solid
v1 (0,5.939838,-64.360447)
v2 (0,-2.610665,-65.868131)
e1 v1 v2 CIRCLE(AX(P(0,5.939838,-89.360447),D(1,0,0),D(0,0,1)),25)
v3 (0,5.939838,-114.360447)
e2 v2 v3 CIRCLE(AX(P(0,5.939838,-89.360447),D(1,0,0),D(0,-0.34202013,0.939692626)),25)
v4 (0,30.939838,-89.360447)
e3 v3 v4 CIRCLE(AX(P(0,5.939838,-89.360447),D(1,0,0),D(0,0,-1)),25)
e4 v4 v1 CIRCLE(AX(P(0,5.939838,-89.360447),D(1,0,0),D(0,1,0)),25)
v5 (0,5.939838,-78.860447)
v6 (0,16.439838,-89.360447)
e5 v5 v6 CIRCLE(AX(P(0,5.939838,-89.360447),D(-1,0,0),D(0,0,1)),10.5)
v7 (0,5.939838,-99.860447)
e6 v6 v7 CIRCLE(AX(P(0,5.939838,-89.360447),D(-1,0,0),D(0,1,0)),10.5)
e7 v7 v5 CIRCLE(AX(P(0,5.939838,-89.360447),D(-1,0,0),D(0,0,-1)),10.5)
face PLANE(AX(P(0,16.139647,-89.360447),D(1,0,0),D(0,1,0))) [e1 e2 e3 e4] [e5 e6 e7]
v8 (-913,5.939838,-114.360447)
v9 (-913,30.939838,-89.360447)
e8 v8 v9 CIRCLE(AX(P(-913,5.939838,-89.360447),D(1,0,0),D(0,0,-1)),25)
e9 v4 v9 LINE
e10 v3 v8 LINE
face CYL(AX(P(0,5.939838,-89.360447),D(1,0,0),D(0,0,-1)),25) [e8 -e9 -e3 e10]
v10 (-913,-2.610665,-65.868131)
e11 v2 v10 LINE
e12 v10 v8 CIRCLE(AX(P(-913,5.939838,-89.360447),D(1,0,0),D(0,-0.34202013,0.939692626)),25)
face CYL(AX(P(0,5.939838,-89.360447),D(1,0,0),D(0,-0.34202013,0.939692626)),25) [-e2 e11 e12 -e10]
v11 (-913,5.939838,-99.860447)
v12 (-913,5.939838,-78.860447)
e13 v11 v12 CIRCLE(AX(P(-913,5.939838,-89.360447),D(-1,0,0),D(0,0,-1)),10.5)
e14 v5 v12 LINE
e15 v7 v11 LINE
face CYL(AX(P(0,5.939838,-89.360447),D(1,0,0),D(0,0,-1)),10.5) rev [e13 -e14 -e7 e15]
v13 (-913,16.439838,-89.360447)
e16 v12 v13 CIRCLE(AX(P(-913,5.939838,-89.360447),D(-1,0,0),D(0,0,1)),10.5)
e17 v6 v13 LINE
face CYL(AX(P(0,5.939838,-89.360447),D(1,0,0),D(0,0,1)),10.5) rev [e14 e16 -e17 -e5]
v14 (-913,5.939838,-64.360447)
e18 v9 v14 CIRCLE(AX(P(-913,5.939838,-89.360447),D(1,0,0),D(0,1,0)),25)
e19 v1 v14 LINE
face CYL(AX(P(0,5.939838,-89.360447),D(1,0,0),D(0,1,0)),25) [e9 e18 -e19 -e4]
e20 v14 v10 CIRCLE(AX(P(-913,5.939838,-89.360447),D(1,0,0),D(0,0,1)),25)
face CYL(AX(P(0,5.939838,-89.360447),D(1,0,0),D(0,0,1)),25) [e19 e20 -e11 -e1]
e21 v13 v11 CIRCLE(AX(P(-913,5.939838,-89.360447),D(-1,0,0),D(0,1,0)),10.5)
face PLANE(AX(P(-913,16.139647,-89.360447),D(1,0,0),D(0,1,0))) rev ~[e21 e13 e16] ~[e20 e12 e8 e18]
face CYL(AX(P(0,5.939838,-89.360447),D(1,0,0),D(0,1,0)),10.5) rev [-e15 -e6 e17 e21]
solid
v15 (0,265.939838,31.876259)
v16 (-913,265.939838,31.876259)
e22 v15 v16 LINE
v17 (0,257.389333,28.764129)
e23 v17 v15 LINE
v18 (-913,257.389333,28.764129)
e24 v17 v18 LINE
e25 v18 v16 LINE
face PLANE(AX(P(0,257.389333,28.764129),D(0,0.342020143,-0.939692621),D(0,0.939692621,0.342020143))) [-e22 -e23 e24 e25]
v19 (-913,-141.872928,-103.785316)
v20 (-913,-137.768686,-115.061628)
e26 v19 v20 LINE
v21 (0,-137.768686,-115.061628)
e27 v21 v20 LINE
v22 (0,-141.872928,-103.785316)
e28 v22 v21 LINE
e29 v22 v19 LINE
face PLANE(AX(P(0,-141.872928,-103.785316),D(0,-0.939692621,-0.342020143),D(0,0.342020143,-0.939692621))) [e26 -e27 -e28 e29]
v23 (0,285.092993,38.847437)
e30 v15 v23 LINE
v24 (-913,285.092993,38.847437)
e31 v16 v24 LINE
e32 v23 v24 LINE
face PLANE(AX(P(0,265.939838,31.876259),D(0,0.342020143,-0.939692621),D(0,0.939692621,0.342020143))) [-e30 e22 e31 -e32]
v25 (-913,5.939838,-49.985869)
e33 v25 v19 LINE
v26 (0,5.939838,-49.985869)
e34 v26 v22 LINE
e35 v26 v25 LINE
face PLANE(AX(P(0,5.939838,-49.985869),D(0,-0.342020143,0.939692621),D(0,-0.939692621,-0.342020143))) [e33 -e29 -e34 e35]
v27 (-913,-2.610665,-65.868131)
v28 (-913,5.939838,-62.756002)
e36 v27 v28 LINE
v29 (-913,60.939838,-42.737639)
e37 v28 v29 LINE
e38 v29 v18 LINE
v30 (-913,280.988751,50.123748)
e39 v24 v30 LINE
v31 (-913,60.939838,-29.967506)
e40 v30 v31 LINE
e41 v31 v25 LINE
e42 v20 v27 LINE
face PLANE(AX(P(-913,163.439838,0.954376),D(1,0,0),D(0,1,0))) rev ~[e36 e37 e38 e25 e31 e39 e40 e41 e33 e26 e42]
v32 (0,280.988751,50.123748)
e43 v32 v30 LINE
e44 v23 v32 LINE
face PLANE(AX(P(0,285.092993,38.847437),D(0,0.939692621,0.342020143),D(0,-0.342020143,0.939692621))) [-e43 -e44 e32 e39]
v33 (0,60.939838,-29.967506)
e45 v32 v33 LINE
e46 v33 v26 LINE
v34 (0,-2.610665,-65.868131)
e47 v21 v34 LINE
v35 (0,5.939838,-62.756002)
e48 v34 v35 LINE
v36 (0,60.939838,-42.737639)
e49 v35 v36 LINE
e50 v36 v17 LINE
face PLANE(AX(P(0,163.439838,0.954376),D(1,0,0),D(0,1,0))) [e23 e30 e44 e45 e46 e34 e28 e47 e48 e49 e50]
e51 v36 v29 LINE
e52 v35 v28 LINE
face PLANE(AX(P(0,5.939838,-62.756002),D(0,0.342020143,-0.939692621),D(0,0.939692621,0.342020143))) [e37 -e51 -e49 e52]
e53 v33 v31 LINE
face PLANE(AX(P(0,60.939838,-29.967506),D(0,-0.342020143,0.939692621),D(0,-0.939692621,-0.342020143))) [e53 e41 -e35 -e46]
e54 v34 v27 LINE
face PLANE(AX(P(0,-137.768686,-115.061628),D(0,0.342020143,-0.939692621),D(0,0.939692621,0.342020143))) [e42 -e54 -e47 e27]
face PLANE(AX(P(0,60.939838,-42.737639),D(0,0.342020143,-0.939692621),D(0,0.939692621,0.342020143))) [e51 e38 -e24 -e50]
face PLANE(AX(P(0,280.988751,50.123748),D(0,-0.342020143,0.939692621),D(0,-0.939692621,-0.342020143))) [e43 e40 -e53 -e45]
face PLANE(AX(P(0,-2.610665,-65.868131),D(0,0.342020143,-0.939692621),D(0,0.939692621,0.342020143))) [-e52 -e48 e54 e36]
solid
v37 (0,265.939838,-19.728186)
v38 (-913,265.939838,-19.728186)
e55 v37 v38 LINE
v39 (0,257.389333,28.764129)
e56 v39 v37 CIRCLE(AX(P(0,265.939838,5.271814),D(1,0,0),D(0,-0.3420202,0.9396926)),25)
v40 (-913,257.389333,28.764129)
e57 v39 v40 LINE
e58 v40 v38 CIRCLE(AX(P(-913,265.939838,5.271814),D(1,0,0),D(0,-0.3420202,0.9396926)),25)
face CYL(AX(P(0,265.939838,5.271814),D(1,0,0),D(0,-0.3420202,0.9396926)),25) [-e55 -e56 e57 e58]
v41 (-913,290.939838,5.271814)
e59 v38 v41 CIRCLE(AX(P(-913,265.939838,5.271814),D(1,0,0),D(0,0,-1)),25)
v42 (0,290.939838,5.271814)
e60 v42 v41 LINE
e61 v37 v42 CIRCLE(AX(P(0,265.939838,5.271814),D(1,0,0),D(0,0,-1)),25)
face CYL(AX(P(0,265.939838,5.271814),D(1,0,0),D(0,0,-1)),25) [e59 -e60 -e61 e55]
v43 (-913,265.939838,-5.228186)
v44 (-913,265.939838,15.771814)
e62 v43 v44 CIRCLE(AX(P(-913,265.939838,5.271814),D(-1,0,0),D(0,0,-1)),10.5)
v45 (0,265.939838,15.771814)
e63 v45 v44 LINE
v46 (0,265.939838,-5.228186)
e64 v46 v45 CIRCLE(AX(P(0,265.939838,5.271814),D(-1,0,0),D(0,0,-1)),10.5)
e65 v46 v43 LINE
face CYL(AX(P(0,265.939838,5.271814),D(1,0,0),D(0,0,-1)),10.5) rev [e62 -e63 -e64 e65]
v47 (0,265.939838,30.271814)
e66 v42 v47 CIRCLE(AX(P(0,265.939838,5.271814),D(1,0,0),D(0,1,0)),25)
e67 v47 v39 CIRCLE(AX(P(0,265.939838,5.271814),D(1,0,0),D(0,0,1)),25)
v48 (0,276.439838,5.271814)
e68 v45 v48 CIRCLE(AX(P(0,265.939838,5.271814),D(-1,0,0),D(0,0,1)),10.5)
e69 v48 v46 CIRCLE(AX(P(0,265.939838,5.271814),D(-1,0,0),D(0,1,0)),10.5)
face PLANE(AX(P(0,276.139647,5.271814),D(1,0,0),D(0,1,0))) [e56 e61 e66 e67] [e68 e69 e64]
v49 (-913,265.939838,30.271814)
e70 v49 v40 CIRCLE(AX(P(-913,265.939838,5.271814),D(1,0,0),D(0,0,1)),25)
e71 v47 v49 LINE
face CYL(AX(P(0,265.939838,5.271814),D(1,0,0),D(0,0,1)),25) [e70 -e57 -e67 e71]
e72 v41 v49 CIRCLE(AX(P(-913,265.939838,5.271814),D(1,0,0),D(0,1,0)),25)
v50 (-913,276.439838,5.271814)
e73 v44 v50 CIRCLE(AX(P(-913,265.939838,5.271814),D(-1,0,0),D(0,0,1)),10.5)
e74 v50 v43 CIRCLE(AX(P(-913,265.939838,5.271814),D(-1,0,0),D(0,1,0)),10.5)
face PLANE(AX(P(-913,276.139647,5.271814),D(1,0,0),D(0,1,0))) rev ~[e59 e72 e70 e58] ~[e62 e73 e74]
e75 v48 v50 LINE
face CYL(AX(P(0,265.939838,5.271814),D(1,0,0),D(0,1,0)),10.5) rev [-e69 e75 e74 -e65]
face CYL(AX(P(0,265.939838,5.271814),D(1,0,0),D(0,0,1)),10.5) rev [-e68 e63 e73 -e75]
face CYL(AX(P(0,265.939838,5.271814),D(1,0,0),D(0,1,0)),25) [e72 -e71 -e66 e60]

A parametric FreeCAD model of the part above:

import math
import FreeCAD as App
import Part
import Sketcher

V = App.Vector
Q = App.Units.Quantity


def add_polygon(sketch, points):
    """Adds a closed chain of lines whose ends are joined by coincident constraints."""
    first, n = sketch.GeometryCount, len(points)
    for a, b in zip(points, points[1:] + points[:1]):
        sketch.addGeometry(Part.LineSegment(App.Vector(*a, 0), App.Vector(*b, 0)), False)
    for i in range(n):
        sketch.addConstraint(Sketcher.Constraint("Coincident", first + i, 2, first + (i + 1) % n, 1))

doc = App.newDocument("Part")
params = doc.addObject("Spreadsheet::Sheet", "Params")
for row, (alias, value) in enumerate([
    ("sketch1_radius", "25 mm"),
    ("sketch1_radius2", "10.5 mm"),
    ("pad1_length", "913 mm"),
    ("sketch2_radius", "25 mm"),
    ("sketch2_radius2", "10.5 mm"),
    ("pad2_length", "913 mm"),
    ("sketch3_length", "12 mm"),
    ("pad3_length", "913 mm"),
], start=1):
    params.set(f"A{row}", alias)
    params.set(f"B{row}", "=" + value)
    params.setAlias(f"B{row}", alias)

body = doc.addObject("PartDesign::Body", "Body")

sketch1 = doc.addObject("Sketcher::SketchObject", "Sketch")
body.addObject(sketch1)
sketch1.AttachmentSupport = (doc.YZ_Plane, [""])
sketch1.MapMode = "FlatFace"
sketch1.addGeometry([
    Part.ArcOfCircle(Part.Circle(V(6, -89, 0), V(0, 0, 1), 25), math.radians(0), math.radians(90)),
    Part.ArcOfCircle(Part.Circle(V(6, -89, 0), V(0, 0, 1), 25), math.radians(90), math.radians(110)),
    Part.ArcOfCircle(Part.Circle(V(6, -89, 0), V(0, 0, 1), 25), math.radians(110), math.radians(270)),
    Part.ArcOfCircle(Part.Circle(V(6, -89, 0), V(0, 0, 1), 25), math.radians(-90), math.radians(0)),
    Part.ArcOfCircle(Part.Circle(V(6, -89, 0), V(0, 0, 1), 10), math.radians(0), math.radians(90)),
    Part.ArcOfCircle(Part.Circle(V(6, -89, 0), V(0, 0, 1), 10), math.radians(-90), math.radians(0)),
    Part.ArcOfCircle(Part.Circle(V(6, -89, 0), V(0, 0, 1), 10), math.radians(90), math.radians(270)),
], False)
sketch1.addConstraint([
    Sketcher.Constraint("Tangent", 0, 2, 1, 1),
    Sketcher.Constraint("Tangent", 1, 2, 2, 1),
    Sketcher.Constraint("Tangent", 2, 2, 3, 1),
    Sketcher.Constraint("Tangent", 3, 2, 0, 1),
    Sketcher.Constraint("Tangent", 4, 1, 5, 2),
    Sketcher.Constraint("Tangent", 5, 1, 6, 2),
    Sketcher.Constraint("Tangent", 6, 1, 4, 2),
    Sketcher.Constraint("Coincident", 4, 3, 0, 3),
    Sketcher.Constraint("Equal", 0, 1),
    Sketcher.Constraint("Horizontal", 6, 3, 3, 2),
    Sketcher.Constraint("Horizontal", 3, 2, 4, 1),
    Sketcher.Constraint("Vertical", 6, 3, 0, 2),
    Sketcher.Constraint("Vertical", 0, 2, 2, 2),
    Sketcher.Constraint("Vertical", 2, 2, 5, 1),
    Sketcher.Constraint("Vertical", 5, 1, 6, 1),
    Sketcher.Constraint("Radius", 0, 25.0),
    Sketcher.Constraint("Radius", 4, 10.5),
    Sketcher.Constraint("DistanceX", -1, 1, 0, 3, 5.939838),
    Sketcher.Constraint("DistanceY", 1, 2, -1, 1, 65.868131),
    Sketcher.Constraint("DistanceY", 0, 3, -1, 1, 89.360447),
])
sketch1.setExpression("Constraints[15]", "Params.sketch1_radius")
sketch1.setExpression("Constraints[16]", "Params.sketch1_radius2")
pad1 = doc.addObject("PartDesign::Pad", "Pad")
body.addObject(pad1)
pad1.Profile = sketch1
pad1.setExpression("Length", "Params.pad1_length")
pad1.Reversed = True
body2 = doc.addObject("PartDesign::Body", "Body001")

sketch2 = doc.addObject("Sketcher::SketchObject", "Sketch001")
body2.addObject(sketch2)
sketch2.AttachmentSupport = (doc.getObject("YZ_Plane001"), [""])
sketch2.MapMode = "FlatFace"
sketch2.addGeometry([
    Part.ArcOfCircle(Part.Circle(V(266, 5, 0), V(0, 0, 1), 25), math.radians(0), math.radians(90)),
    Part.ArcOfCircle(Part.Circle(V(266, 5, 0), V(0, 0, 1), 25), math.radians(90), math.radians(110)),
    Part.ArcOfCircle(Part.Circle(V(266, 5, 0), V(0, 0, 1), 25), math.radians(110), math.radians(270)),
    Part.ArcOfCircle(Part.Circle(V(266, 5, 0), V(0, 0, 1), 25), math.radians(-90), math.radians(0)),
    Part.ArcOfCircle(Part.Circle(V(266, 5, 0), V(0, 0, 1), 10), math.radians(0), math.radians(90)),
    Part.ArcOfCircle(Part.Circle(V(266, 5, 0), V(0, 0, 1), 10), math.radians(-90), math.radians(0)),
    Part.ArcOfCircle(Part.Circle(V(266, 5, 0), V(0, 0, 1), 10), math.radians(90), math.radians(270)),
], False)
sketch2.addConstraint([
    Sketcher.Constraint("Tangent", 0, 2, 1, 1),
    Sketcher.Constraint("Tangent", 1, 2, 2, 1),
    Sketcher.Constraint("Tangent", 2, 2, 3, 1),
    Sketcher.Constraint("Tangent", 3, 2, 0, 1),
    Sketcher.Constraint("Tangent", 4, 1, 5, 2),
    Sketcher.Constraint("Tangent", 5, 1, 6, 2),
    Sketcher.Constraint("Tangent", 6, 1, 4, 2),
    Sketcher.Constraint("Coincident", 4, 3, 0, 3),
    Sketcher.Constraint("Equal", 0, 1),
    Sketcher.Constraint("Horizontal", 6, 3, 3, 2),
    Sketcher.Constraint("Horizontal", 3, 2, 4, 1),
    Sketcher.Constraint("Vertical", 6, 3, 0, 2),
    Sketcher.Constraint("Vertical", 0, 2, 2, 2),
    Sketcher.Constraint("Vertical", 2, 2, 5, 1),
    Sketcher.Constraint("Vertical", 5, 1, 6, 1),
    Sketcher.Constraint("Radius", 0, 25.0),
    Sketcher.Constraint("Radius", 4, 10.5),
    Sketcher.Constraint("DistanceX", -1, 1, 0, 3, 265.939838),
    Sketcher.Constraint("DistanceY", -1, 1, 1, 2, 28.764129),
    Sketcher.Constraint("DistanceY", -1, 1, 0, 3, 5.271814),
])
sketch2.setExpression("Constraints[15]", "Params.sketch2_radius")
sketch2.setExpression("Constraints[16]", "Params.sketch2_radius2")
pad2 = doc.addObject("PartDesign::Pad", "Pad001")
body2.addObject(pad2)
pad2.Profile = sketch2
pad2.setExpression("Length", "Params.pad2_length")
pad2.Reversed = True
body3 = doc.addObject("PartDesign::Body", "Body002")

sketch3 = doc.addObject("Sketcher::SketchObject", "Sketch002")
body3.addObject(sketch3)
sketch3.AttachmentSupport = (doc.getObject("YZ_Plane002"), [""])
sketch3.MapMode = "FlatFace"
add_polygon(sketch3, [(61, -30), (6, -50), (-142, -104), (-138, -115), (-3, -66), (6, -63), (61, -43), (257, 29), (266, 32), (285, 39), (281, 50)])
sketch3.addConstraint([
    Sketcher.Constraint("Parallel", 0, 1),
    Sketcher.Constraint("Perpendicular", 1, 2),
    Sketcher.Constraint("Perpendicular", 2, 3),
    Sketcher.Constraint("Parallel", 3, 4),
    Sketcher.Constraint("Parallel", 4, 5),
    Sketcher.Constraint("Parallel", 5, 6),
    Sketcher.Constraint("Parallel", 6, 7),
    Sketcher.Constraint("Parallel", 7, 8),
    Sketcher.Constraint("Perpendicular", 8, 9),
    Sketcher.Constraint("Perpendicular", 9, 10),
    Sketcher.Constraint("Vertical", 0, 2, 4, 2),
    Sketcher.Constraint("Vertical", 5, 2, 10, 2),
    Sketcher.Constraint("Equal", 4, 7),
    Sketcher.Constraint("Angle", 0, Q("-160 deg")),
    Sketcher.Constraint("Distance", 2, 12.0),
    Sketcher.Constraint("DistanceX", 0, 2, 5, 2, 55.0),
    Sketcher.Constraint("DistanceX", 3, 2, 6, 2, 259.999998),
    Sketcher.Constraint("DistanceY", 0, 2, 6, 2, 78.749998),
    Sketcher.Constraint("Distance", 1, 157.29906),
    Sketcher.Constraint("Distance", 8, 20.382362),
    Sketcher.Constraint("DistanceX", -1, 1, 0, 2, 5.939838),
    Sketcher.Constraint("DistanceY", 0, 2, -1, 1, 49.985869),
])
sketch3.setExpression("Constraints[25]", "Params.sketch3_length")
pad3 = doc.addObject("PartDesign::Pad", "Pad002")
body3.addObject(pad3)
pad3.Profile = sketch3
pad3.setExpression("Length", "Params.pad3_length")
pad3.Reversed = True

doc.recompute()
